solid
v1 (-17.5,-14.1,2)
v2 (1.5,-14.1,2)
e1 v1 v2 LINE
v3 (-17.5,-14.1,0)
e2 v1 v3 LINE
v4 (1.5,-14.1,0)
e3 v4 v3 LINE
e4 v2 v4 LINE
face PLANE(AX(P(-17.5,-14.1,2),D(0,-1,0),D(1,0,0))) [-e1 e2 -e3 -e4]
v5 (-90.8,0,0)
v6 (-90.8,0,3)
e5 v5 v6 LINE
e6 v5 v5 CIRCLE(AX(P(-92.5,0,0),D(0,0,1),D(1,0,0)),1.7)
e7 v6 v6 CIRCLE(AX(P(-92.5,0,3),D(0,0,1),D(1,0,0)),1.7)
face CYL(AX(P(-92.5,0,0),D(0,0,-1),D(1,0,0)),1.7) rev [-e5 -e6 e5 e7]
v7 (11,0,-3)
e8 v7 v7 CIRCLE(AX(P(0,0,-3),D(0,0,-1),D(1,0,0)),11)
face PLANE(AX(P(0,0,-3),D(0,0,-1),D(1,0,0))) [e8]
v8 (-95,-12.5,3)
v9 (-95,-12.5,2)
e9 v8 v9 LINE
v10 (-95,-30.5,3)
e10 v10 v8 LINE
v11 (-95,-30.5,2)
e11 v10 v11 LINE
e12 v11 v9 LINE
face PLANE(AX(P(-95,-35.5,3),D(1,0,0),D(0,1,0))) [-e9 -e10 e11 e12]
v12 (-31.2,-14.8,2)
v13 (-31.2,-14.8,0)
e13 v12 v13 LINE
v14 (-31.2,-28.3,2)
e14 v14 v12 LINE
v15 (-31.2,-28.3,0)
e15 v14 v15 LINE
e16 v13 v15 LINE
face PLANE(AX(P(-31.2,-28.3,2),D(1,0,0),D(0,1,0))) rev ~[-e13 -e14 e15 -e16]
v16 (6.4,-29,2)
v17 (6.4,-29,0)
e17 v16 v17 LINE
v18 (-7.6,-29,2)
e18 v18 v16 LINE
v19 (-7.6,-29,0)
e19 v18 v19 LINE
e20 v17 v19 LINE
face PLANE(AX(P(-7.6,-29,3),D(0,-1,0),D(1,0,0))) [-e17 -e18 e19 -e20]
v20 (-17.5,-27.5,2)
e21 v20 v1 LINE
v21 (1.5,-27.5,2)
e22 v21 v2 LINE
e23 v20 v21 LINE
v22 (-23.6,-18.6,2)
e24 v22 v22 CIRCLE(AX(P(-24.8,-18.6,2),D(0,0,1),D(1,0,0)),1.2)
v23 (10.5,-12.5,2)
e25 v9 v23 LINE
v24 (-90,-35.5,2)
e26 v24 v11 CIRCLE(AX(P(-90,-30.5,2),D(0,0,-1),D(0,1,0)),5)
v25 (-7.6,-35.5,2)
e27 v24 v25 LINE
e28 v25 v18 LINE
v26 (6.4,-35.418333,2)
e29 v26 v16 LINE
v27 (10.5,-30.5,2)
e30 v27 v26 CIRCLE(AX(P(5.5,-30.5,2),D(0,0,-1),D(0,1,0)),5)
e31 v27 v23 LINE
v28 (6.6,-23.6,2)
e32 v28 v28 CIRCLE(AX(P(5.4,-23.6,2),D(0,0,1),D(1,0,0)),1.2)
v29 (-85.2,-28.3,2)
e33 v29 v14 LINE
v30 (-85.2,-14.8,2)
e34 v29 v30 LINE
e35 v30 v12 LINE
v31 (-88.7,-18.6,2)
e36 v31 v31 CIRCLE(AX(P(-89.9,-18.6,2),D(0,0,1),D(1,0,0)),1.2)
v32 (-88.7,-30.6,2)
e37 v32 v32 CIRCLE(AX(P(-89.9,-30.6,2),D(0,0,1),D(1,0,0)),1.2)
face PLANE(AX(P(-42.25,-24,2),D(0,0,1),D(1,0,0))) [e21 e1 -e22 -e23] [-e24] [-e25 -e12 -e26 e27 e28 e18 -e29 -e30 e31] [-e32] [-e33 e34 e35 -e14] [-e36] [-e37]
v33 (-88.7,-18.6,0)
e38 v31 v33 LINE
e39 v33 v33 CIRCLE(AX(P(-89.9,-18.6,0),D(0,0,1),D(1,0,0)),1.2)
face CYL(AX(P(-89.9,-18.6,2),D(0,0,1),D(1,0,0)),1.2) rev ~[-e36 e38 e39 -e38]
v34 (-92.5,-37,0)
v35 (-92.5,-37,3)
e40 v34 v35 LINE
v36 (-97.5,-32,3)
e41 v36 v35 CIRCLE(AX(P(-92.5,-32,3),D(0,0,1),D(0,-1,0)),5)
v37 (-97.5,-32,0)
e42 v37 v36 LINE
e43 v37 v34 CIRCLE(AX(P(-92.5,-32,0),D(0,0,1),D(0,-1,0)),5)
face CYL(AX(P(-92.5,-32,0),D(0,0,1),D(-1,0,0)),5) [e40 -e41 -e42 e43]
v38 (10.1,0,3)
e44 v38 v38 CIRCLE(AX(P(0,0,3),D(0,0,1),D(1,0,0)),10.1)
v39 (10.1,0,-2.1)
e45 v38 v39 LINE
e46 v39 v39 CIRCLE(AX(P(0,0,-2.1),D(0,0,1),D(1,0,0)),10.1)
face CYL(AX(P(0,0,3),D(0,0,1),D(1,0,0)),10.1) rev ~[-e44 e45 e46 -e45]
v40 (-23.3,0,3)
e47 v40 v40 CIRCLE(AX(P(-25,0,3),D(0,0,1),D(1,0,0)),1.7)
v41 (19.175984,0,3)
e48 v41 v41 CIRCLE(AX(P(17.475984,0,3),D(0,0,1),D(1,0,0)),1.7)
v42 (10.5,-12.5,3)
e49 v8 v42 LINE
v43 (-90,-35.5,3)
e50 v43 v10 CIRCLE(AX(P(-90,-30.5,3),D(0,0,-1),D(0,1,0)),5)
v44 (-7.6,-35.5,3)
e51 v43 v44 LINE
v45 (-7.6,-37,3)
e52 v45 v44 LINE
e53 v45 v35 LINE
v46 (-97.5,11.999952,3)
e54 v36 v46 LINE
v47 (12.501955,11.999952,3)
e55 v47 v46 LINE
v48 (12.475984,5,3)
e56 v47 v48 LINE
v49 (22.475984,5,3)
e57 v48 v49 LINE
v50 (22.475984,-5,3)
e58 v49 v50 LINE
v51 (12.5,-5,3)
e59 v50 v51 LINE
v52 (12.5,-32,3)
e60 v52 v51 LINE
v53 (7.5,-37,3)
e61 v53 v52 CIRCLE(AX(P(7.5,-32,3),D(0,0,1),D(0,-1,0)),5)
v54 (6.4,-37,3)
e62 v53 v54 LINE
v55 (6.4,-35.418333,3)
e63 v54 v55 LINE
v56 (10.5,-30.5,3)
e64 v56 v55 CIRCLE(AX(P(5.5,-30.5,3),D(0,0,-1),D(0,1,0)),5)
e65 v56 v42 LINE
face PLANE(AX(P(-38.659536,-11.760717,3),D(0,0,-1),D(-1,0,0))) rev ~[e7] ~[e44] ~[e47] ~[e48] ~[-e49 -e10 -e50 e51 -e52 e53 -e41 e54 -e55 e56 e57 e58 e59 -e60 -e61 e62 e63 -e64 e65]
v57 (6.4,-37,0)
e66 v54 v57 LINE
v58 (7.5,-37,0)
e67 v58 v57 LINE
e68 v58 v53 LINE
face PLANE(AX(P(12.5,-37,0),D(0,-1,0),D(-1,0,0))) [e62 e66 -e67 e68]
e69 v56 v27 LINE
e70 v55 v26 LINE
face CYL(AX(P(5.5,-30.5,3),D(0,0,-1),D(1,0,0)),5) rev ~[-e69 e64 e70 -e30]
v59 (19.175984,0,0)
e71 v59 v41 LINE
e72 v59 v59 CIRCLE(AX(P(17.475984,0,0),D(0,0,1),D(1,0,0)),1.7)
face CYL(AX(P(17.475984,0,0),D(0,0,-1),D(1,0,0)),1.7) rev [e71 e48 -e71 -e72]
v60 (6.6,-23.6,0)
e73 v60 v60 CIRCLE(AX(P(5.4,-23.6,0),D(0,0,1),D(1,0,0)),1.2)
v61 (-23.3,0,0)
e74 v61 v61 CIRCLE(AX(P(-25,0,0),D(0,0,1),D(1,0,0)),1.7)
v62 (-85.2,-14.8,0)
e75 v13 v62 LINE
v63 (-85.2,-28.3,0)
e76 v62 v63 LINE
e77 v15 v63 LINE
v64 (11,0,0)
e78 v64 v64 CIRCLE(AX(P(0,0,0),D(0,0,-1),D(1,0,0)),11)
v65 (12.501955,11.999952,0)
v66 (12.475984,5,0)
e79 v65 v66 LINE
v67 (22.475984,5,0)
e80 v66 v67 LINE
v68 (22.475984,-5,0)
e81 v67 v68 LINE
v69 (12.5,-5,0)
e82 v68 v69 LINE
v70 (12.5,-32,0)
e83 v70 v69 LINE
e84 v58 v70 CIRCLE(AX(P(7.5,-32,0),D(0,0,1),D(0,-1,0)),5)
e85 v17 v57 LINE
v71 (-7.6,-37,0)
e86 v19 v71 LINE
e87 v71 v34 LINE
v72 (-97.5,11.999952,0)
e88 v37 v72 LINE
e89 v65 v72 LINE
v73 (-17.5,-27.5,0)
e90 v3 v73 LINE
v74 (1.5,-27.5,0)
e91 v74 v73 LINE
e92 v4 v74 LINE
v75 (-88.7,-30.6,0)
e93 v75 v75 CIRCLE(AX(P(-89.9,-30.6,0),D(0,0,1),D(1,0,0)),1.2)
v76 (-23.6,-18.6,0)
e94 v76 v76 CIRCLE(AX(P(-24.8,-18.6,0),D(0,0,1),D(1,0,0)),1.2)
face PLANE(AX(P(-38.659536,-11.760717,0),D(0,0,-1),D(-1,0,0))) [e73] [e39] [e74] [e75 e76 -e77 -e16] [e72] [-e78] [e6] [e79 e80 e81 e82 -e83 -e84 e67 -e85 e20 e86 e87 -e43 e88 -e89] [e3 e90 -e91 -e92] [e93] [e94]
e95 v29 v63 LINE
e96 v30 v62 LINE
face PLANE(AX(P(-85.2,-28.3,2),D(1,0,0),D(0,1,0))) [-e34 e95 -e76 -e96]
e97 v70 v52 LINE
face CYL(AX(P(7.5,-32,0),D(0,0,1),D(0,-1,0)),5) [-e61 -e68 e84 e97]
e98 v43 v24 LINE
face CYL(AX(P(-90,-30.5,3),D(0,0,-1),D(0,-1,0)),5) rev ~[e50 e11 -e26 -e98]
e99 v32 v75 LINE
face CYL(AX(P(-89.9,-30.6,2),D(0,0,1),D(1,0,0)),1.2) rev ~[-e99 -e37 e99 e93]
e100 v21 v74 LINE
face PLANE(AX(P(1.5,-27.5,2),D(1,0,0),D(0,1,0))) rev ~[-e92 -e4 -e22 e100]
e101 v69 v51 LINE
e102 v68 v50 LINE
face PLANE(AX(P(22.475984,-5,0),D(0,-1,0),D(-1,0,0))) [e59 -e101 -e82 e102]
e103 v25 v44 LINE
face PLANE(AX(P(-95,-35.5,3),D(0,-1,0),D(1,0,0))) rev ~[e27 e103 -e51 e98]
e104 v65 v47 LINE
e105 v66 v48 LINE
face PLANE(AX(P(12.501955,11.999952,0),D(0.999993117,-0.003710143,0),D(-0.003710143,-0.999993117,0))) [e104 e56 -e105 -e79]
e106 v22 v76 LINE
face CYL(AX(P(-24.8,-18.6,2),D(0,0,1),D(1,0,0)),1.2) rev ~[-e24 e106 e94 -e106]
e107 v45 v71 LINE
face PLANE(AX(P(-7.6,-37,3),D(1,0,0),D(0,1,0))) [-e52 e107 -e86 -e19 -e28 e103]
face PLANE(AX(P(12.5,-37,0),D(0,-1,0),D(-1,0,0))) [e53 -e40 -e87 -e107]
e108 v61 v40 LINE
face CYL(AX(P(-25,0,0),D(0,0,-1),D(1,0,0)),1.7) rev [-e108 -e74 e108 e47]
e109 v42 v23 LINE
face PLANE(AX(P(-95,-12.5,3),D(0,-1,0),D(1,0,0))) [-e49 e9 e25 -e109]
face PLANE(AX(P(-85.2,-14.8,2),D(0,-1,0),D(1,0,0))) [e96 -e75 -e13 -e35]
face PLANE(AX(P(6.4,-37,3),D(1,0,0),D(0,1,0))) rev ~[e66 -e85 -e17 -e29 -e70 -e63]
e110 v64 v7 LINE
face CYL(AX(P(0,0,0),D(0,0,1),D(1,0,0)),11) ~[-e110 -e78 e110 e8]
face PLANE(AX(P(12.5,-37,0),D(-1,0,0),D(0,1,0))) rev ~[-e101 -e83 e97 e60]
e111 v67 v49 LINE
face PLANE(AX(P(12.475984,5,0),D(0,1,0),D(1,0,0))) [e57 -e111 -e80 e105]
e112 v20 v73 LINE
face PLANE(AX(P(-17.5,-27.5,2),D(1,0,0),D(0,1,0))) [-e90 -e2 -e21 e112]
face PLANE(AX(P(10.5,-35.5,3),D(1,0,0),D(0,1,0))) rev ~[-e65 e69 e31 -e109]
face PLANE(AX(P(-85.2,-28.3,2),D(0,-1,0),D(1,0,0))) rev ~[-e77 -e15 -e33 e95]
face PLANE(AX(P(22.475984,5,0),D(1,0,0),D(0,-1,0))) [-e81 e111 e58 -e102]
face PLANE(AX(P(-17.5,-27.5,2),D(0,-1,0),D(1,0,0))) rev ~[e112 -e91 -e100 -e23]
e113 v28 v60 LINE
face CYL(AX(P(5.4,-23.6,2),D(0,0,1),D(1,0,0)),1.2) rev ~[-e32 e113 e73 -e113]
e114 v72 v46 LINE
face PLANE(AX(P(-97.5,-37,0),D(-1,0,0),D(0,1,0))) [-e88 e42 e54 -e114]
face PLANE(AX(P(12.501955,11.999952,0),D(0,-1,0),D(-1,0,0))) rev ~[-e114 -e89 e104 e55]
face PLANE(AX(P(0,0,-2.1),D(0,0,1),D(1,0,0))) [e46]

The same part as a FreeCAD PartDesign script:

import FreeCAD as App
import Part
import Sketcher
from FreeCAD import Vector
Q = App.Units.Quantity


def edges_at(feature, points):
    """Names of the edges that pass closest to the given points."""
    edges = feature.Shape.Edges
    near = lambda p: min(range(len(edges)), key=lambda i: edges[i].distToShape(Part.Vertex(*p))[0])
    return sorted({f"Edge{near(p) + 1}" for p in points})


def add_polygon(sketch, points):
    """Adds a closed chain of lines whose ends are joined by coincident constraints."""
    first, n = sketch.GeometryCount, len(points)
    for a, b in zip(points, points[1:] + points[:1]):
        sketch.addGeometry(Part.LineSegment(App.Vector(*a, 0), App.Vector(*b, 0)), False)
    for i in range(n):
        sketch.addConstraint(Sketcher.Constraint("Coincident", first + i, 2, first + (i + 1) % n, 1))

doc = App.newDocument("Part")
body = doc.addObject("PartDesign::Body", "Body")

sketch1 = doc.addObject("Sketcher::SketchObject", "Sketch")
body.addObject(sketch1)
sketch1.AttachmentSupport = (doc.XY_Plane, [""])
sketch1.MapMode = "FlatFace"
add_polygon(sketch1, [(12.5, 12), (-97.5, 12), (-97.5, -37), (12.5, -37), (12.5, -5), (22.5, -5), (22.5, 5), (12.5, 5)])
sketch1.addGeometry(Part.Circle(Vector(17.5, 0, 0), Vector(0, 0, 1), 1.7), False)
sketch1.addGeometry(Part.Circle(Vector(-25, 0, 0), Vector(0, 0, 1), 1.7), False)
sketch1.addGeometry(Part.Circle(Vector(-92.5, 0, 0), Vector(0, 0, 1), 1.7), False)
sketch1.addConstraint(Sketcher.Constraint("Horizontal", 0))
sketch1.addConstraint(Sketcher.Constraint("Vertical", 1))
sketch1.addConstraint(Sketcher.Constraint("Horizontal", 2))
sketch1.addConstraint(Sketcher.Constraint("Vertical", 3))
sketch1.addConstraint(Sketcher.Constraint("Horizontal", 4))
sketch1.addConstraint(Sketcher.Constraint("Vertical", 5))
sketch1.addConstraint(Sketcher.Constraint("Horizontal", 6))
sketch1.addConstraint(Sketcher.Constraint("Equal", 8, 9))
sketch1.addConstraint(Sketcher.Constraint("Equal", 9, 10))
sketch1.addConstraint(Sketcher.Constraint("PointOnObject", 8, 3, -1))
sketch1.addConstraint(Sketcher.Constraint("PointOnObject", 9, 3, -1))
sketch1.addConstraint(Sketcher.Constraint("PointOnObject", 10, 3, -1))
sketch1.addConstraint(Sketcher.Constraint("Equal", 6, 5))
sketch1.addConstraint(Sketcher.Constraint("Diameter", 8, Q("3.4 mm")))
sketch1.addConstraint(Sketcher.Constraint("DistanceX", 2, 1, 2, 2, Q("110 mm")))
sketch1.addConstraint(Sketcher.Constraint("DistanceX", 6, 2, 6, 1, Q("10 mm")))
sketch1.addConstraint(Sketcher.Constraint("DistanceY", 3, 1, 3, 2, Q("32 mm")))
sketch1.addConstraint(Sketcher.Constraint("Distance", 7, Q("7 mm")))
sketch1.addConstraint(Sketcher.Constraint("DistanceX", 9, 3, -1, 1, Q("25 mm")))
sketch1.addConstraint(Sketcher.Constraint("DistanceY", 1, 2, -1, 1, Q("37 mm")))
sketch1.addConstraint(Sketcher.Constraint("DistanceX", 0, 2, 10, 3, Q("5 mm")))
sketch1.addConstraint(Sketcher.Constraint("DistanceX", 8, 3, 4, 2, Q("5 mm")))
sketch1.addConstraint(Sketcher.Constraint("DistanceX", 10, 3, -1, 1, Q("92.5 mm")))
sketch1.addConstraint(Sketcher.Constraint("DistanceX", 0, 2, 0, 1, Q("110.001955 mm")))
sketch1.addConstraint(Sketcher.Constraint("DistanceX", 4, 1, 4, 2, Q("9.975984 mm")))
pad1 = doc.addObject("PartDesign::Pad", "Pad")
body.addObject(pad1)
pad1.Profile = sketch1
pad1.Length = 3

sketch2 = doc.addObject("Sketcher::SketchObject", "Sketch001")
body.addObject(sketch2)
sketch2.AttachmentSupport = (doc.XY_Plane, [""])
sketch2.MapMode = "FlatFace"
sketch2.AttachmentOffset = App.Placement(Vector(0, 0, 3), App.Rotation())
add_polygon(sketch2, [(-95, -12), (-95, -36), (10, -36), (10, -12)])
sketch2.addConstraint(Sketcher.Constraint("Vertical", 0))
sketch2.addConstraint(Sketcher.Constraint("Horizontal", 1))
sketch2.addConstraint(Sketcher.Constraint("Vertical", 2))
sketch2.addConstraint(Sketcher.Constraint("Horizontal", 3))
sketch2.addConstraint(Sketcher.Constraint("DistanceY", 0, 2, 0, 1, Q("23 mm")))
sketch2.addConstraint(Sketcher.Constraint("DistanceX", 1, 1, 1, 2, Q("105.5 mm")))
sketch2.addConstraint(Sketcher.Constraint("DistanceX", 0, 2, -1, 1, Q("95 mm")))
sketch2.addConstraint(Sketcher.Constraint("DistanceY", 0, 2, -1, 1, Q("35.5 mm")))
pocket1 = doc.addObject("PartDesign::Pocket", "Pocket")
body.addObject(pocket1)
pocket1.Profile = sketch2
pocket1.Length = 1

sketch3 = doc.addObject("Sketcher::SketchObject", "Sketch002")
body.addObject(sketch3)
sketch3.AttachmentSupport = (doc.XY_Plane, [""])
sketch3.MapMode = "FlatFace"
sketch3.AttachmentOffset = App.Placement(Vector(0, 0, 2), App.Rotation())
sketch3.addGeometry(Part.Circle(Vector(-89.9, -18.6, 0), Vector(0, 0, 1), 1.2), False)
sketch3.addGeometry(Part.Circle(Vector(-89.9, -30.6, 0), Vector(0, 0, 1), 1.2), False)
sketch3.addGeometry(Part.Circle(Vector(-24.8, -18.6, 0), Vector(0, 0, 1), 1.2), False)
sketch3.addGeometry(Part.Circle(Vector(5.4, -23.6, 0), Vector(0, 0, 1), 1.2), False)
add_polygon(sketch3, [(-85.2, -14.8), (-85.2, -28.3), (-31.2, -28.3), (-31.2, -14.8)])
add_polygon(sketch3, [(-17.5, -14.1), (-17.5, -27.5), (1.5, -27.5), (1.5, -14.1)])
sketch3.addConstraint(Sketcher.Constraint("Vertical", 4))
sketch3.addConstraint(Sketcher.Constraint("Horizontal", 5))
sketch3.addConstraint(Sketcher.Constraint("Vertical", 6))
sketch3.addConstraint(Sketcher.Constraint("Horizontal", 7))
sketch3.addConstraint(Sketcher.Constraint("Vertical", 8))
sketch3.addConstraint(Sketcher.Constraint("Horizontal", 9))
sketch3.addConstraint(Sketcher.Constraint("Vertical", 10))
sketch3.addConstraint(Sketcher.Constraint("Horizontal", 11))
sketch3.addConstraint(Sketcher.Constraint("Equal", 0, 1))
sketch3.addConstraint(Sketcher.Constraint("Equal", 1, 2))
sketch3.addConstraint(Sketcher.Constraint("Equal", 2, 3))
sketch3.addConstraint(Sketcher.Constraint("Horizontal", 0, 3, 2, 3))
sketch3.addConstraint(Sketcher.Constraint("Vertical", 0, 3, 1, 3))
sketch3.addConstraint(Sketcher.Constraint("Diameter", 0, Q("2.4 mm")))
sketch3.addConstraint(Sketcher.Constraint("DistanceX", 5, 1, 5, 2, Q("54 mm")))
sketch3.addConstraint(Sketcher.Constraint("DistanceX", 9, 1, 9, 2, Q("19 mm")))
sketch3.addConstraint(Sketcher.Constraint("DistanceY", 4, 2, 4, 1, Q("13.5 mm")))
sketch3.addConstraint(Sketcher.Constraint("DistanceY", 8, 2, 8, 1, Q("13.4 mm")))
sketch3.addConstraint(Sketcher.Constraint("DistanceY", 1, 3, 0, 3, Q("12 mm")))
sketch3.addConstraint(Sketcher.Constraint("DistanceY", 3, 3, 2, 3, Q("5 mm")))
sketch3.addConstraint(Sketcher.Constraint("DistanceX", 0, 3, -1, 1, Q("89.9 mm")))
sketch3.addConstraint(Sketcher.Constraint("DistanceY", 0, 3, -1, 1, Q("18.6 mm")))
sketch3.addConstraint(Sketcher.Constraint("DistanceX", 2, 3, -1, 1, Q("24.8 mm")))
sketch3.addConstraint(Sketcher.Constraint("DistanceX", -1, 1, 3, 3, Q("5.4 mm")))
sketch3.addConstraint(Sketcher.Constraint("DistanceX", 4, 2, -1, 1, Q("85.2 mm")))
sketch3.addConstraint(Sketcher.Constraint("DistanceY", 4, 2, -1, 1, Q("28.3 mm")))
sketch3.addConstraint(Sketcher.Constraint("DistanceX", 8, 2, -1, 1, Q("17.5 mm")))
sketch3.addConstraint(Sketcher.Constraint("DistanceY", 8, 2, -1, 1, Q("27.5 mm")))
pocket2 = doc.addObject("PartDesign::Pocket", "Pocket001")
body.addObject(pocket2)
pocket2.Profile = sketch3
pocket2.Length = 5
doc.recompute()

fillet = doc.addObject("PartDesign::Fillet", "Fillet")
body.addObject(fillet)
fillet.Base = (pocket2, edges_at(pocket2, [(10.5, -35.5, 2.5)]))
fillet.Radius = 5
doc.recompute()

fillet2 = doc.addObject("PartDesign::Fillet", "Fillet001")
body.addObject(fillet2)
fillet2.Base = (fillet, edges_at(fillet, [(-95, -35.5, 2.5)]))
fillet2.Radius = 5
doc.recompute()

fillet3 = doc.addObject("PartDesign::Fillet", "Fillet002")
body.addObject(fillet3)
fillet3.Base = (fillet2, edges_at(fillet2, [(-97.5, -37, 1.5)]))
fillet3.Radius = 5
doc.recompute()

fillet4 = doc.addObject("PartDesign::Fillet", "Fillet003")
body.addObject(fillet4)
fillet4.Base = (fillet3, edges_at(fillet3, [(12.5, -37, 1.5)]))
fillet4.Radius = 5

sketch4 = doc.addObject("Sketcher::SketchObject", "Sketch003")
body.addObject(sketch4)
sketch4.AttachmentSupport = (doc.XY_Plane, [""])
sketch4.MapMode = "FlatFace"
sketch4.AttachmentOffset = App.Placement(Vector(0, 0, 3), App.Rotation())
add_polygon(sketch4, [(-8, -29), (-8, -37), (6, -37), (6, -29)])
sketch4.addConstraint(Sketcher.Constraint("Vertical", 0))
sketch4.addConstraint(Sketcher.Constraint("Horizontal", 1))
sketch4.addConstraint(Sketcher.Constraint("Vertical", 2))
sketch4.addConstraint(Sketcher.Constraint("Horizontal", 3))
sketch4.addConstraint(Sketcher.Constraint("DistanceX", 1, 1, 1, 2, Q("14 mm")))
sketch4.addConstraint(Sketcher.Constraint("DistanceY", 0, 2, 0, 1, Q("8 mm")))
sketch4.addConstraint(Sketcher.Constraint("DistanceY", 0, 2, -1, 1, Q("37 mm")))
sketch4.addConstraint(Sketcher.Constraint("DistanceX", 0, 2, -1, 1, Q("7.6 mm")))
pocket3 = doc.addObject("PartDesign::Pocket", "Pocket002")
body.addObject(pocket3)
pocket3.Profile = sketch4
pocket3.Length = 5

sketch5 = doc.addObject("Sketcher::SketchObject", "Sketch004")
body.addObject(sketch5)
sketch5.AttachmentSupport = (doc.XY_Plane, [""])
sketch5.MapMode = "FlatFace"
sketch5.addGeometry(Part.Circle(Vector(0, 0, 0), Vector(0, 0, 1), 11), False)
sketch5.addConstraint(Sketcher.Constraint("Coincident", 0, 3, -1, 1))
sketch5.addConstraint(Sketcher.Constraint("Diameter", 0, Q("22 mm")))
pad2 = doc.addObject("PartDesign::Pad", "Pad001")
body.addObject(pad2)
pad2.Profile = sketch5
pad2.Length = 3
pad2.Reversed = True

sketch6 = doc.addObject("Sketcher::SketchObject", "Sketch005")
body.addObject(sketch6)
sketch6.AttachmentSupport = (doc.XY_Plane, [""])
sketch6.MapMode = "FlatFace"
sketch6.AttachmentOffset = App.Placement(Vector(0, 0, 3), App.Rotation())
sketch6.addGeometry(Part.Circle(Vector(0, 0, 0), Vector(0, 0, 1), 10), False)
sketch6.addConstraint(Sketcher.Constraint("Coincident", 0, 3, -1, 1))
sketch6.addConstraint(Sketcher.Constraint("Diameter", 0, Q("20.2 mm")))
pocket4 = doc.addObject("PartDesign::Pocket", "Pocket003")
body.addObject(pocket4)
pocket4.Profile = sketch6
pocket4.Length = 5.1

doc.recompute()
